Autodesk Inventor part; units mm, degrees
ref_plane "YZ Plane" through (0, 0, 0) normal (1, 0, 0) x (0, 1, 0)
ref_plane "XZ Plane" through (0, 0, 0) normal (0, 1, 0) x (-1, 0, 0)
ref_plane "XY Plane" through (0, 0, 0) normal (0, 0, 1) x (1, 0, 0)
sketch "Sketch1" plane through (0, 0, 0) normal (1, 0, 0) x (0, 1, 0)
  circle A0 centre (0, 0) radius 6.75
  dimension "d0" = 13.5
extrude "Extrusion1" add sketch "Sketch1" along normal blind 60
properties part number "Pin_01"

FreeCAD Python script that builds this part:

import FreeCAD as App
import Part
import Sketcher
Q = App.Units.Quantity

doc = App.newDocument("Part")
body = doc.addObject("PartDesign::Body", "Body")

# Sketch on YZ plane
sketch1 = doc.addObject("Sketcher::SketchObject", "Sketch")
body.addObject(sketch1)
sketch1.AttachmentSupport = (doc.YZ_Plane, [""])
sketch1.MapMode = "FlatFace"
sketch1.addGeometry(Part.Circle(App.Vector(0, 0, 0), App.Vector(0, 0, 1), 7), False)
sketch1.addConstraint([
    Sketcher.Constraint("Coincident", 0, 3, -1, 1),
    Sketcher.Constraint("Diameter", 0, Q("13.5 mm")),
])
pad1 = doc.addObject("PartDesign::Pad", "Pad")
body.addObject(pad1)
pad1.Profile = sketch1
pad1.Length = 60

doc.recompute()
